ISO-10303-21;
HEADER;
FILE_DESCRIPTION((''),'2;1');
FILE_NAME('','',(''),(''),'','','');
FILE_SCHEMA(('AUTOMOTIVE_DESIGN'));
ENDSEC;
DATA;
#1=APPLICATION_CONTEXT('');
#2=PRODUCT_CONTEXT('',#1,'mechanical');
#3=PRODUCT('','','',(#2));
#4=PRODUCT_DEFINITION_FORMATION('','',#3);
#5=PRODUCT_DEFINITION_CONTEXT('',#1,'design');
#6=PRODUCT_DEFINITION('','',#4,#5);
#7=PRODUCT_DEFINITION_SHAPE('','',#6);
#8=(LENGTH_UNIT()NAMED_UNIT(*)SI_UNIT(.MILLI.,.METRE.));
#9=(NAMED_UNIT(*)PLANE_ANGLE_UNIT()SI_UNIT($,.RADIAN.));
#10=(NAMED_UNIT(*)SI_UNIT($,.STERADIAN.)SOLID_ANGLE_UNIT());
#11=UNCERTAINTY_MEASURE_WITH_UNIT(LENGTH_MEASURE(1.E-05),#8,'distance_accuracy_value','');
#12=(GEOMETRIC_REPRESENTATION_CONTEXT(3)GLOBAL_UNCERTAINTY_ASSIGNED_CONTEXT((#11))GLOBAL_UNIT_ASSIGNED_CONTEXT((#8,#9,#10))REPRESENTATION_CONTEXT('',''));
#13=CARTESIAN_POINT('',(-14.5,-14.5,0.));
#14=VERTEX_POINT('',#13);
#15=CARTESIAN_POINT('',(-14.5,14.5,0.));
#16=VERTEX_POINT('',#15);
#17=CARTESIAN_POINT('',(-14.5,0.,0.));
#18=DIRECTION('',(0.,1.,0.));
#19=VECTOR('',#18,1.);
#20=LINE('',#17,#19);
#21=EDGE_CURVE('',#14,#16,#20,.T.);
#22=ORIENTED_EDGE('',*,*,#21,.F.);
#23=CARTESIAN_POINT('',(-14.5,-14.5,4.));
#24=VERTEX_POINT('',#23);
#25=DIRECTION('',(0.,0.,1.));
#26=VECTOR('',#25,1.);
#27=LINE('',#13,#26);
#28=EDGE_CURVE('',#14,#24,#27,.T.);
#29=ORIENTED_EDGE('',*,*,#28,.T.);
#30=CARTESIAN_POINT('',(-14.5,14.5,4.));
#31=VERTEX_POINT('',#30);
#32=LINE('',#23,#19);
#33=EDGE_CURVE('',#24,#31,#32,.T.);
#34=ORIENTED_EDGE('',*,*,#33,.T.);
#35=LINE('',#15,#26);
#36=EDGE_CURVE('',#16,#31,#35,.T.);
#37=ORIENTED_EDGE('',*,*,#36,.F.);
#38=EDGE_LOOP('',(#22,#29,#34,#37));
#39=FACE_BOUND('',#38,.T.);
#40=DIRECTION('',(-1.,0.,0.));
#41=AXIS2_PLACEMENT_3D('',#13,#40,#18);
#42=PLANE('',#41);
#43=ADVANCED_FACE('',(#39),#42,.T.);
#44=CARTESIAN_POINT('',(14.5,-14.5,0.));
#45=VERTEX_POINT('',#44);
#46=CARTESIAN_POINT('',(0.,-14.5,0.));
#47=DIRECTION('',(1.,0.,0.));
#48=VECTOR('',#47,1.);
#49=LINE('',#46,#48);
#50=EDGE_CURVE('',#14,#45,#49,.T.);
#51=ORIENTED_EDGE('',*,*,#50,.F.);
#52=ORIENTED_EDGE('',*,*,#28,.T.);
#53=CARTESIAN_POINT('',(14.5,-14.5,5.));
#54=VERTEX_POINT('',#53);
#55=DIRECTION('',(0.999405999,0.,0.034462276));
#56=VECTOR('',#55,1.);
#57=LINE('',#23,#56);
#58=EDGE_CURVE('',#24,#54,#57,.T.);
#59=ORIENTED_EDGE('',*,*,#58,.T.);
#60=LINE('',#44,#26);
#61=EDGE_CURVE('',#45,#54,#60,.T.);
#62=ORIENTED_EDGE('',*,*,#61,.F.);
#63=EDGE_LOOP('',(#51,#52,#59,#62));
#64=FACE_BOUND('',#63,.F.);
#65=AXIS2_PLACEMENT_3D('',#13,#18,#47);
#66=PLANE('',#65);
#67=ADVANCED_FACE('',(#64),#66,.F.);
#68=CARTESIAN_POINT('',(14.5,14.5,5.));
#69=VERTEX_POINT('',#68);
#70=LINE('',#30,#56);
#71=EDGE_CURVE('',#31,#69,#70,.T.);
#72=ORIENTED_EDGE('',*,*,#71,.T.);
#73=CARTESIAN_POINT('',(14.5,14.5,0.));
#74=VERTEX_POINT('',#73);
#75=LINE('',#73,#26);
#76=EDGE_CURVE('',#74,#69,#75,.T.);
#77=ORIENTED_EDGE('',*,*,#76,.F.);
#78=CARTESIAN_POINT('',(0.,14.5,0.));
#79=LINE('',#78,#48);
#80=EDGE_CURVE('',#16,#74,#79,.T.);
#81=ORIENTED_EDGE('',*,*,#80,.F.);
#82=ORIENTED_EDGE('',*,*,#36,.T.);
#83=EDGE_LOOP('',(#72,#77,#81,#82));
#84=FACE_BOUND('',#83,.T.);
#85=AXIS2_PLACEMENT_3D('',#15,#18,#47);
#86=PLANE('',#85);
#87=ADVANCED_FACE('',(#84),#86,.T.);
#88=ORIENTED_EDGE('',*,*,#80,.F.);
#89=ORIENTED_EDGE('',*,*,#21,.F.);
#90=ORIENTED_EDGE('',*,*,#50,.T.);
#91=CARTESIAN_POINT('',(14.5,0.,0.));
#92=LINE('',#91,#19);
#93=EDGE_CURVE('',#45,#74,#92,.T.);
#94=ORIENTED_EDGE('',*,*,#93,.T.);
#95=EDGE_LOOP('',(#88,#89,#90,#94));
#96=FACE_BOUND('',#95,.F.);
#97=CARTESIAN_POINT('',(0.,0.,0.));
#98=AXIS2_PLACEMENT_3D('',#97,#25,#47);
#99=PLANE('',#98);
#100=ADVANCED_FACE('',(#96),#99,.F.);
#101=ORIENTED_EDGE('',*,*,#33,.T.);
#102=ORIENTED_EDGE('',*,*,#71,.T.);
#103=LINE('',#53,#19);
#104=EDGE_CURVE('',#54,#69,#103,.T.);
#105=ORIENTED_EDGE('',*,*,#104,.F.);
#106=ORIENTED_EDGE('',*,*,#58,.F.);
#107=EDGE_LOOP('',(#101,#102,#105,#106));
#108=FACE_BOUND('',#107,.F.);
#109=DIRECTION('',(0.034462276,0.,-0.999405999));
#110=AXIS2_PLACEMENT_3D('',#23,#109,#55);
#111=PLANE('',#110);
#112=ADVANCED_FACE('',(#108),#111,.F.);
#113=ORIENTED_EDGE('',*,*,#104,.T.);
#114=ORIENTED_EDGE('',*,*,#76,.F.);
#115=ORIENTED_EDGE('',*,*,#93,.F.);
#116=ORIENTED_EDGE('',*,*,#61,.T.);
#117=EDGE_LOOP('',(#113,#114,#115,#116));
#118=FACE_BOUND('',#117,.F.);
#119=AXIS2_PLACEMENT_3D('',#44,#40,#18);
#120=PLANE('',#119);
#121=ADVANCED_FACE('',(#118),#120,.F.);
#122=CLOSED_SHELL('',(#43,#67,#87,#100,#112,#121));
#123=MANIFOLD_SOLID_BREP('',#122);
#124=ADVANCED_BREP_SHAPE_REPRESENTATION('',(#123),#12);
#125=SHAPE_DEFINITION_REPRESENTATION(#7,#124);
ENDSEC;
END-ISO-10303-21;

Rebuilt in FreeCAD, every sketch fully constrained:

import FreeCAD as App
import Part
import Sketcher
from FreeCAD import Vector
Q = App.Units.Quantity


def add_polygon(sketch, points):
    """Adds a closed chain of lines whose ends are joined by coincident constraints."""
    first, n = sketch.GeometryCount, len(points)
    for a, b in zip(points, points[1:] + points[:1]):
        sketch.addGeometry(Part.LineSegment(App.Vector(*a, 0), App.Vector(*b, 0)), False)
    for i in range(n):
        sketch.addConstraint(Sketcher.Constraint("Coincident", first + i, 2, first + (i + 1) % n, 1))

doc = App.newDocument("Part")
body = doc.addObject("PartDesign::Body", "Body")

sketch1 = body.newObject("Sketcher::SketchObject", "Sketch")
sketch1.AttachmentSupport = (doc.getObject("XY_Plane"), [""])
sketch1.MapMode = "FlatFace"
add_polygon(sketch1, [(-14, 14), (-14, -14), (14, -14), (14, 14)])
sketch1.addConstraint([
    Sketcher.Constraint("Vertical", 0),
    Sketcher.Constraint("Horizontal", 1),
    Sketcher.Constraint("Vertical", 2),
    Sketcher.Constraint("Horizontal", 3),
    Sketcher.Constraint("Symmetric", 0, 2, 2, 2, -1, 1),
    Sketcher.Constraint("Equal", 3, 0),
    Sketcher.Constraint("DistanceX", 1, 1, 1, 2, Q("29 mm")),
])
pad1 = body.newObject("PartDesign::Pad", "Pad")
pad1.Profile = sketch1
pad1.Length = 6

sketch2 = body.newObject("Sketcher::SketchObject", "Sketch001")
sketch2.AttachmentSupport = (doc.getObject("XZ_Plane"), [""])
sketch2.MapMode = "FlatFace"
sketch2.AttachmentOffset = App.Placement(Vector(0, 0, 14.5), App.Rotation())
add_polygon(sketch2, [(-14.5, 6), (-14.5, 4), (14.5, 5), (14.5, 6)])
sketch2.addConstraint([
    Sketcher.Constraint("Vertical", 0),
    Sketcher.Constraint("Vertical", 2),
    Sketcher.Constraint("Horizontal", 3),
    Sketcher.Constraint("DistanceX", 3, 2, 3, 1, Q("29 mm")),
    Sketcher.Constraint("DistanceY", 0, 2, 0, 1, Q("2 mm")),
    Sketcher.Constraint("DistanceY", 2, 1, 2, 2, Q("1 mm")),
    Sketcher.Constraint("DistanceY", -1, 1, 0, 2, Q("4 mm")),
    Sketcher.Constraint("DistanceX", 0, 2, -1, 1, Q("14.5 mm")),
])
pocket1 = body.newObject("PartDesign::Pocket", "Pocket")
pocket1.Profile = sketch2
pocket1.Length = 29

doc.recompute()
